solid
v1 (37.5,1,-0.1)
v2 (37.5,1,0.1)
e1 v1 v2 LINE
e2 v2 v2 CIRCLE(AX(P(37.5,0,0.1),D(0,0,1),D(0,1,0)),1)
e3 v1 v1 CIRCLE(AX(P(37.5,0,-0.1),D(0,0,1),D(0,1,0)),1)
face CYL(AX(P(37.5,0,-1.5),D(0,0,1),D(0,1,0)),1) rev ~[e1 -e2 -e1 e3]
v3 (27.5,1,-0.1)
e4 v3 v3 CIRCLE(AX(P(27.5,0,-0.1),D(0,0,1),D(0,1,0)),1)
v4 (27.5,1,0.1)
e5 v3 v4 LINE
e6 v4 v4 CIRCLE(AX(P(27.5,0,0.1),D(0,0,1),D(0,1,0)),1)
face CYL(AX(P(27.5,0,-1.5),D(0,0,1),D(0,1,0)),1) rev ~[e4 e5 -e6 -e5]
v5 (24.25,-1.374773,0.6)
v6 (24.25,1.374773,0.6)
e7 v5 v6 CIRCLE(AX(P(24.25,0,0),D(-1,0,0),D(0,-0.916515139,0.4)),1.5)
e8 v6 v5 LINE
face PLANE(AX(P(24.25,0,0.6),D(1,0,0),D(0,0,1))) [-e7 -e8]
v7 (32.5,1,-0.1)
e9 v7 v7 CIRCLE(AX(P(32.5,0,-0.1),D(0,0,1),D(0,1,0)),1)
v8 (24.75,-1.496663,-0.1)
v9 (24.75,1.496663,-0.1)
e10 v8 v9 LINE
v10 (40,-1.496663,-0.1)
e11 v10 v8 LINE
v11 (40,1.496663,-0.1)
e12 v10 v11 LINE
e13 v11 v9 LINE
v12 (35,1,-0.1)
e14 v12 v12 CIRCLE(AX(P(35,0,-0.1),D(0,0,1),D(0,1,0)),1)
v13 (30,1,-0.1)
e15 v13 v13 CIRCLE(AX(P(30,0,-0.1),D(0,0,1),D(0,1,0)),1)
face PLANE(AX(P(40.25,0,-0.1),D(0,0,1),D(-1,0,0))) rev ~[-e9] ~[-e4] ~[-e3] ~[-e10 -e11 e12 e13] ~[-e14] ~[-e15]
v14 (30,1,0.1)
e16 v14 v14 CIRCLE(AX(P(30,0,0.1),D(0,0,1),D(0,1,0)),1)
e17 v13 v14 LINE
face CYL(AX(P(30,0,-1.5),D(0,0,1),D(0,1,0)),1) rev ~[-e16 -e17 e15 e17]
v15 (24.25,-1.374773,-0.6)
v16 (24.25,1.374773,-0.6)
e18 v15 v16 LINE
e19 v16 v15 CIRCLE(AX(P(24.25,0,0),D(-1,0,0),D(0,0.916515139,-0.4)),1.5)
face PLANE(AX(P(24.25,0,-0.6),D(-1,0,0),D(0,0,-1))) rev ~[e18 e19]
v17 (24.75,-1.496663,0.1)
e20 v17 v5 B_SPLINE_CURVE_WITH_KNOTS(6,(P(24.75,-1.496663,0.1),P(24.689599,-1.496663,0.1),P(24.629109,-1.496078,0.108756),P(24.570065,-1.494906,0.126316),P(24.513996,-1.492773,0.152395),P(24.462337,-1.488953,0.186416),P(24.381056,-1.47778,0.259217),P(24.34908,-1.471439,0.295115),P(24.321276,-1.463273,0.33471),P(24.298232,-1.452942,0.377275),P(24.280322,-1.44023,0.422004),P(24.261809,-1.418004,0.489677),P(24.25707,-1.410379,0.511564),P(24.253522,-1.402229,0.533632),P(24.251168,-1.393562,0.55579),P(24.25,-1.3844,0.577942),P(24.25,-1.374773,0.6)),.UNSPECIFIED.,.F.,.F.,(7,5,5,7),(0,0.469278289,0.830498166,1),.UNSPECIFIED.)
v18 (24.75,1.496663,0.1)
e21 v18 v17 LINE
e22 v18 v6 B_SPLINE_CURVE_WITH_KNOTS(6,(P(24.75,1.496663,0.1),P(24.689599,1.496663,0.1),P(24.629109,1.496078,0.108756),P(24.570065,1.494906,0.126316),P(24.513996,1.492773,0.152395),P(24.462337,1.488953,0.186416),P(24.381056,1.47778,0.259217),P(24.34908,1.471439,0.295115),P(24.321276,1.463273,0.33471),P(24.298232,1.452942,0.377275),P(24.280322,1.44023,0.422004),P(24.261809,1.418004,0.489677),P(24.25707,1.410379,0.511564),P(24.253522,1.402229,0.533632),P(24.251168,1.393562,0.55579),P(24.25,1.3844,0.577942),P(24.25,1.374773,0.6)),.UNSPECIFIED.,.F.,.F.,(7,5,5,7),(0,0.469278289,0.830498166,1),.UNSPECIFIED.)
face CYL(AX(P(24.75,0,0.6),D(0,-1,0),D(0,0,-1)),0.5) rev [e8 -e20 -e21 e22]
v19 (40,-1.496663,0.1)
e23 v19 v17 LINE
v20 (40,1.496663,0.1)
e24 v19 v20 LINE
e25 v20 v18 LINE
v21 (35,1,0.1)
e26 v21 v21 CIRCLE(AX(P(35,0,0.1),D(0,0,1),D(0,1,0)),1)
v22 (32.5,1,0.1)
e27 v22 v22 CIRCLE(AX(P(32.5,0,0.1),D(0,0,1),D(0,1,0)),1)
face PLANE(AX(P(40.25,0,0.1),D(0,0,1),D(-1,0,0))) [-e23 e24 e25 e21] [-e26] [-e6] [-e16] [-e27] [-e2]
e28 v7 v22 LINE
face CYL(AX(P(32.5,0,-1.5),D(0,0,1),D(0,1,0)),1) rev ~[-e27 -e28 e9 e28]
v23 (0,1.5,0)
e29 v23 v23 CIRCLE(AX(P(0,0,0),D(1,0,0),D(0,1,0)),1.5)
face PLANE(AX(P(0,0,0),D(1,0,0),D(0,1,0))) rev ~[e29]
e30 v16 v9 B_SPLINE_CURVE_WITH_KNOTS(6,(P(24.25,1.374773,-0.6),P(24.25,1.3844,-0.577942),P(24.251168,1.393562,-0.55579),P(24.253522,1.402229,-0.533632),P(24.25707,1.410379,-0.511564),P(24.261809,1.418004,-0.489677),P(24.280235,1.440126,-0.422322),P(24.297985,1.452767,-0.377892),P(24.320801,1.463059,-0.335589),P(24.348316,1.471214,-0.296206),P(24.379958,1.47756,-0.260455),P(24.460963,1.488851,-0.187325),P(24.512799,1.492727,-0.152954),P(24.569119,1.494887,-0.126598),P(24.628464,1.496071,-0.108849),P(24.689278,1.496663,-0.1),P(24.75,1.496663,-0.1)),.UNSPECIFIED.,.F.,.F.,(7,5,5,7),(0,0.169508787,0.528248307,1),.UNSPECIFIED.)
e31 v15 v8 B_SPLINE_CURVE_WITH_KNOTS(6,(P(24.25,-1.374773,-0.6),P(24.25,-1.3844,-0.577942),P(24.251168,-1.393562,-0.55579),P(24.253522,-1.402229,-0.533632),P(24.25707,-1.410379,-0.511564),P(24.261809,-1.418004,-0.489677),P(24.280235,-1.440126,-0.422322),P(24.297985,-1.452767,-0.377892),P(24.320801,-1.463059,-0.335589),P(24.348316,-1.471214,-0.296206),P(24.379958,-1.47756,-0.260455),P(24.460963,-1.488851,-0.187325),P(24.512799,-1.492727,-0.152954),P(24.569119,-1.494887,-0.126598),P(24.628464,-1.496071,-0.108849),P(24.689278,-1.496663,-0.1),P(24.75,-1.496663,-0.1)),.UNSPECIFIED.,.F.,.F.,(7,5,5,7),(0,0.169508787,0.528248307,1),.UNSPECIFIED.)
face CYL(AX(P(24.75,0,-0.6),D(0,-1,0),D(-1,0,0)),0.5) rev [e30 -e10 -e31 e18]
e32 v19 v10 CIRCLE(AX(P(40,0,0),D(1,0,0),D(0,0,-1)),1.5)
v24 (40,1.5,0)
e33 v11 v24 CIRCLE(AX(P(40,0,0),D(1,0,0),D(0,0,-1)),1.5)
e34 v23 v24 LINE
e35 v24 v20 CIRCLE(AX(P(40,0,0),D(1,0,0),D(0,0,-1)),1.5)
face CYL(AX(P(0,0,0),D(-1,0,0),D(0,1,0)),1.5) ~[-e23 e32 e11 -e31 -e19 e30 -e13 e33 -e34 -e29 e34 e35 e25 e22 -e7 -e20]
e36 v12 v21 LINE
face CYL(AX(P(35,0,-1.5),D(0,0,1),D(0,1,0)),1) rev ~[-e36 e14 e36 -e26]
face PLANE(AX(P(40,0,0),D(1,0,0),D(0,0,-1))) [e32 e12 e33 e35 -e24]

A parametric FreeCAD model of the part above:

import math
import FreeCAD as App
import Part
import Sketcher
from FreeCAD import Vector
Q = App.Units.Quantity

doc = App.newDocument("Part")
params = doc.addObject("Spreadsheet::Sheet", "Params")
for row, (alias, value) in enumerate([
    ("sketch1_diameter", "3 mm"),
    ("pad1_length", "71 mm"),
    ("sketch2_diameter", "2 mm"),
    ("hole_diameter", "2 mm"),
    ("linearpattern_pitch", "2.5 mm"),
    ("sketch3_radius", "0.5 mm"),
    ("sketch3_width", "16.5 mm"),
    ("sketch3_height", "0.9 mm"),
    ("sketch4_diameter", "3 mm"),
    ("pocket2_length", "31 mm"),
], start=1):
    params.set(f"A{row}", alias)
    params.set(f"B{row}", "=" + value)
    params.setAlias(f"B{row}", alias)

body = doc.addObject("PartDesign::Body", "Body")

# Sketch on YZ plane
sketch1 = body.newObject("Sketcher::SketchObject", "Sketch")
sketch1.AttachmentSupport = (doc.getObject("YZ_Plane"), [""])
sketch1.MapMode = "FlatFace"
sketch1.addGeometry(Part.Circle(Vector(0, 0, 0), Vector(0, 0, 1), 1.5), False)
sketch1.addConstraint([
    Sketcher.Constraint("Coincident", 0, 3, -1, 1),
    Sketcher.Constraint("Diameter", 0, Q("3 mm")),
])
sketch1.setExpression("Constraints[1]", "Params.sketch1_diameter")
pad1 = body.newObject("PartDesign::Pad", "Pad")
pad1.Profile = sketch1
pad1.setExpression("Length", "Params.pad1_length")

# Sketch on XY plane
sketch2 = body.newObject("Sketcher::SketchObject", "Sketch001")
sketch2.AttachmentSupport = (doc.getObject("XY_Plane"), [""])
sketch2.MapMode = "FlatFace"
sketch2.AttachmentOffset = App.Placement(Vector(0, 0, -1.5), App.Rotation())
sketch2.addGeometry(Part.Circle(Vector(27.5, 0, 0), Vector(0, 0, 1), 1), False)
sketch2.addConstraint([
    Sketcher.Constraint("PointOnObject", 0, 3, -1),
    Sketcher.Constraint("Diameter", 0, Q("2 mm")),
    Sketcher.Constraint("DistanceX", -1, 1, 0, 3, Q("27.5 mm")),
])
sketch2.setExpression("Constraints[1]", "Params.sketch2_diameter")
doc.recompute()
hole = body.newObject("PartDesign::Hole", "Hole")
hole.Profile = sketch2
hole.ThreadType = "None"
hole.setExpression("Diameter", "Params.hole_diameter")
hole.DepthType = "ThroughAll"
hole.Reversed = True
doc.recompute()

linearpattern = body.newObject("PartDesign::LinearPattern", "LinearPattern")
linearpattern.Originals = [hole]
linearpattern.Direction = (doc.getObject("X_Axis"), [""])
linearpattern.Mode = "offset"
linearpattern.setExpression("Offset", "Params.linearpattern_pitch")
linearpattern.Occurrences = 5
body.Tip = linearpattern

# Sketch on XZ plane
sketch3 = body.newObject("Sketcher::SketchObject", "Sketch002")
sketch3.AttachmentSupport = (doc.getObject("XZ_Plane"), [""])
sketch3.MapMode = "FlatFace"
sketch3.addGeometry([
    Part.LineSegment(Vector(24.2, 0.6, 0), Vector(24.2, 1.5, 0)),  # 0
    Part.LineSegment(Vector(24.2, 1.5, 0), Vector(40.8, 1.5, 0)),  # 1
    Part.LineSegment(Vector(40.8, 1.5, 0), Vector(40.8, 0.6, 0)),  # 2
    Part.ArcOfCircle(Part.Circle(Vector(40.2, 0.6, 0), Vector(0, 0, 1), 0.5), math.radians(-90), math.radians(0)),  # 3
    Part.LineSegment(Vector(40.2, 0.1, 0), Vector(24.8, 0.1, 0)),  # 4
    Part.ArcOfCircle(Part.Circle(Vector(24.8, 0.6, 0), Vector(0, 0, 1), 0.5), math.radians(180), math.radians(270)),  # 5
    Part.LineSegment(Vector(40.8, -1.5, 0), Vector(24.2, -1.5, 0)),  # 6
    Part.LineSegment(Vector(24.2, -1.5, 0), Vector(24.2, -0.6, 0)),  # 7
    Part.ArcOfCircle(Part.Circle(Vector(24.8, -0.6, 0), Vector(0, 0, 1), 0.5), math.radians(90), math.radians(180)),  # 8
    Part.LineSegment(Vector(24.8, -0.1, 0), Vector(40.2, -0.1, 0)),  # 9
    Part.ArcOfCircle(Part.Circle(Vector(40.2, -0.6, 0), Vector(0, 0, 1), 0.5), math.radians(0), math.radians(90)),  # 10
    Part.LineSegment(Vector(40.8, -0.6, 0), Vector(40.8, -1.5, 0)),  # 11
], False)
sketch3.addConstraint([
    Sketcher.Constraint("Coincident", 0, 2, 1, 1),
    Sketcher.Constraint("Coincident", 1, 2, 2, 1),
    Sketcher.Constraint("Tangent", 2, 2, 3, 2),
    Sketcher.Constraint("Tangent", 3, 1, 4, 1),
    Sketcher.Constraint("Tangent", 4, 2, 5, 2),
    Sketcher.Constraint("Tangent", 5, 1, 0, 1),
    Sketcher.Constraint("Coincident", 6, 2, 7, 1),
    Sketcher.Constraint("Tangent", 7, 2, 8, 2),
    Sketcher.Constraint("Tangent", 8, 1, 9, 1),
    Sketcher.Constraint("Tangent", 9, 2, 10, 2),
    Sketcher.Constraint("Tangent", 10, 1, 11, 1),
    Sketcher.Constraint("Coincident", 11, 2, 6, 1),
    Sketcher.Constraint("Vertical", 0),
    Sketcher.Constraint("Horizontal", 1),
    Sketcher.Constraint("Vertical", 2),
    Sketcher.Constraint("Horizontal", 4),
    Sketcher.Constraint("Horizontal", 6),
    Sketcher.Constraint("Vertical", 7),
    Sketcher.Constraint("Horizontal", 9),
    Sketcher.Constraint("Vertical", 11),
    Sketcher.Constraint("Equal", 3, 5),
    Sketcher.Constraint("Equal", 5, 8),
    Sketcher.Constraint("Equal", 8, 10),
    Sketcher.Constraint("Symmetric", 5, 3, 8, 3, -1),
    Sketcher.Constraint("Symmetric", 1, 2, 11, 2, -1),
    Sketcher.Constraint("Radius", 3, Q("0.5 mm")),
    Sketcher.Constraint("DistanceX", 1, 1, 1, 2, Q("16.5 mm")),
    Sketcher.Constraint("DistanceY", 8, 1, 4, 2, Q("0.2 mm")),
    Sketcher.Constraint("DistanceX", -1, 1, 0, 2, Q("24.25 mm")),
    Sketcher.Constraint("DistanceY", 0, 1, 0, 2, Q("0.9 mm")),
])
sketch3.setExpression("Constraints[25]", "Params.sketch3_radius")
sketch3.setExpression("Constraints[26]", "Params.sketch3_width")
sketch3.setExpression("Constraints[29]", "Params.sketch3_height")
pocket1 = body.newObject("PartDesign::Pocket", "Pocket")
pocket1.Profile = sketch3
pocket1.Type = "ThroughAll"
pocket1.Midplane = True

# Sketch on YZ plane
sketch4 = body.newObject("Sketcher::SketchObject", "Sketch003")
sketch4.AttachmentSupport = (doc.getObject("YZ_Plane"), [""])
sketch4.MapMode = "FlatFace"
sketch4.AttachmentOffset = App.Placement(Vector(0, 0, 71), App.Rotation())
sketch4.addGeometry(Part.Circle(Vector(0, 0, 0), Vector(0, 0, 1), 1.5), False)
sketch4.addConstraint([
    Sketcher.Constraint("Coincident", 0, 3, -1, 1),
    Sketcher.Constraint("Diameter", 0, Q("3 mm")),
])
sketch4.setExpression("Constraints[1]", "Params.sketch4_diameter")
pocket2 = body.newObject("PartDesign::Pocket", "Pocket001")
pocket2.Profile = sketch4
pocket2.setExpression("Length", "Params.pocket2_length")

doc.recompute()
